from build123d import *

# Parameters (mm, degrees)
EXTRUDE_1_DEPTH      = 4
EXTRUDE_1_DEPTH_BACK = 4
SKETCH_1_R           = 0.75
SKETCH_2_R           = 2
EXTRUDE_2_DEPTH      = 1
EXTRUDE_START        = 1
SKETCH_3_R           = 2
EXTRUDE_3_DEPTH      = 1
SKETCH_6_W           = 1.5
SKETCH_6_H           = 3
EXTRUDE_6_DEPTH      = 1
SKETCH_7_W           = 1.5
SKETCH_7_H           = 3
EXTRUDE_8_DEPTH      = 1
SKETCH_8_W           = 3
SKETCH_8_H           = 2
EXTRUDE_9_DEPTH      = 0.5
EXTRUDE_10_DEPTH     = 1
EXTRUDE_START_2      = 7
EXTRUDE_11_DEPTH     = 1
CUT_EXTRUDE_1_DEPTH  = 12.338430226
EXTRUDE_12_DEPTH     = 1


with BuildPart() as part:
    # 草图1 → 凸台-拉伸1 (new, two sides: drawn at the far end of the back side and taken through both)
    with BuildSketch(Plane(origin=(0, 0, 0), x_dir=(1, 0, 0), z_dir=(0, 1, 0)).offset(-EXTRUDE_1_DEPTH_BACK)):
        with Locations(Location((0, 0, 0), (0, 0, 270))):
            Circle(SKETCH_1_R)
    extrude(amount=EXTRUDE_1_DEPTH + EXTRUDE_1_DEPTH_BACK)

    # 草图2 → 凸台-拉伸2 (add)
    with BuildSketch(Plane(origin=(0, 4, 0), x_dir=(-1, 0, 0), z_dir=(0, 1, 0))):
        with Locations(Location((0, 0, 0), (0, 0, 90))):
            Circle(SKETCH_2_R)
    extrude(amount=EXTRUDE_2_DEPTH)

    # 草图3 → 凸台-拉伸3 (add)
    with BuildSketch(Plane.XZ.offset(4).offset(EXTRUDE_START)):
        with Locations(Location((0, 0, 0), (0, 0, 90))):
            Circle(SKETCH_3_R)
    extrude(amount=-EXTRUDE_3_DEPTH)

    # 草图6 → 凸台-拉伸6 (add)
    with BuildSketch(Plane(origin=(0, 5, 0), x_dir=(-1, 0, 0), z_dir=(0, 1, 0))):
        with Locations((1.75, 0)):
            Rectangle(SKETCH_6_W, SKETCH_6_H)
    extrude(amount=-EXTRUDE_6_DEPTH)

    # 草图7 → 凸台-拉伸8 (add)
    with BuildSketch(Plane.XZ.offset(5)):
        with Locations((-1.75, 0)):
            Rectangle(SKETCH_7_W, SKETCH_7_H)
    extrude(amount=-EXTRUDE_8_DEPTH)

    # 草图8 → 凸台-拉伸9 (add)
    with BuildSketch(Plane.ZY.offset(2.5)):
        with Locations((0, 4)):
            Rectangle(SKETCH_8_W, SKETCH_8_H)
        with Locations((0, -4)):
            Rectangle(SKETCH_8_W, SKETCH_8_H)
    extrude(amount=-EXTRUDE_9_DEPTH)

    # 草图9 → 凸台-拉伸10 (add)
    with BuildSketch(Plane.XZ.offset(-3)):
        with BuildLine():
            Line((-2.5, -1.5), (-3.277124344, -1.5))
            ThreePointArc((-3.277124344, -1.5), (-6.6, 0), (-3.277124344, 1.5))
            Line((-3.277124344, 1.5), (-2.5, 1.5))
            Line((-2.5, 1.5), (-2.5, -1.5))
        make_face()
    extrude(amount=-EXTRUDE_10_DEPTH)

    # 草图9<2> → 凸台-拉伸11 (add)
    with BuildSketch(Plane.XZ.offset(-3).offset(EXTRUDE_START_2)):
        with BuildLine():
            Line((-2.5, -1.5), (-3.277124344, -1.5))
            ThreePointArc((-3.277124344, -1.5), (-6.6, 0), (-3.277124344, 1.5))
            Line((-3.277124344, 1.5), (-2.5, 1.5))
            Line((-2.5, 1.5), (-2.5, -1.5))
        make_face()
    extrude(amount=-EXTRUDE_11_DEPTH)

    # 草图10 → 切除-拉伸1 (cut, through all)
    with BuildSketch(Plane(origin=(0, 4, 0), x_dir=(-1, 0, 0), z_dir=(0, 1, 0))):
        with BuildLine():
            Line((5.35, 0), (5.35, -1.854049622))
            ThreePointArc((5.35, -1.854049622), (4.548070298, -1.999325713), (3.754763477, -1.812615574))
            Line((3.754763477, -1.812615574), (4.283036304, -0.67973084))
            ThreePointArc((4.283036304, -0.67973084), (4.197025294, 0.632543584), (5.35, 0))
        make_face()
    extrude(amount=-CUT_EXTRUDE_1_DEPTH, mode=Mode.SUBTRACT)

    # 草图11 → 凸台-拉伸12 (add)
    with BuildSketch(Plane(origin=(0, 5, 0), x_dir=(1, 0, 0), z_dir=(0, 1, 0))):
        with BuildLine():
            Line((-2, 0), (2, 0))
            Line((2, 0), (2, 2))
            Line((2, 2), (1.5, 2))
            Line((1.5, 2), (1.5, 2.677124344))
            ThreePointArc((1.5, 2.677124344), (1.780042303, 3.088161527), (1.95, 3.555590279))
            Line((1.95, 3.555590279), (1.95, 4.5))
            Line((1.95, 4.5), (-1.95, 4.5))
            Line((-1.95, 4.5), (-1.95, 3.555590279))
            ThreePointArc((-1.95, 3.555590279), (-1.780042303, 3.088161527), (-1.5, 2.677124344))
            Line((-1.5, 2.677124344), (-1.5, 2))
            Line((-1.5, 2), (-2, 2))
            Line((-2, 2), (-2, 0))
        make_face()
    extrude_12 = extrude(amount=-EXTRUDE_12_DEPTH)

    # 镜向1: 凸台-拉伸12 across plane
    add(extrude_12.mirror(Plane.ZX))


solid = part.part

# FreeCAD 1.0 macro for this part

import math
import FreeCAD as App
import Part
import Sketcher
from FreeCAD import Vector
Q = App.Units.Quantity


def add_polygon(sketch, points):
    """Adds a closed chain of lines whose ends are joined by coincident constraints."""
    first, n = sketch.GeometryCount, len(points)
    for a, b in zip(points, points[1:] + points[:1]):
        sketch.addGeometry(Part.LineSegment(App.Vector(*a, 0), App.Vector(*b, 0)), False)
    for i in range(n):
        sketch.addConstraint(Sketcher.Constraint("Coincident", first + i, 2, first + (i + 1) % n, 1))

doc = App.newDocument("Part")
body = doc.addObject("PartDesign::Body", "Body")

sketch1 = body.newObject("Sketcher::SketchObject", "Sketch")
sketch1.AttachmentSupport = (doc.getObject("XZ_Plane"), [""])
sketch1.MapMode = "FlatFace"
sketch1.addGeometry(Part.Circle(Vector(0, 0, 0), Vector(0, 0, 1), 0.8), False)
sketch1.addConstraint(Sketcher.Constraint("Coincident", 0, 3, -1, 1))
sketch1.addConstraint(Sketcher.Constraint("Diameter", 0, Q("1.5 mm")))
pad1 = body.newObject("PartDesign::Pad", "Pad")
pad1.Profile = sketch1
pad1.Type = "TwoLengths"
pad1.Length = 4
pad1.Length2 = 4
pad1.Reversed = True

sketch2 = body.newObject("Sketcher::SketchObject", "Sketch001")
sketch2.AttachmentSupport = (doc.getObject("XZ_Plane"), [""])
sketch2.MapMode = "FlatFace"
sketch2.AttachmentOffset = App.Placement(Vector(0, 0, -4), App.Rotation())
sketch2.addGeometry(Part.Circle(Vector(0, 0, 0), Vector(0, 0, 1), 2), False)
sketch2.addConstraint(Sketcher.Constraint("Coincident", 0, 3, -1, 1))
sketch2.addConstraint(Sketcher.Constraint("Diameter", 0, Q("4 mm")))
pad2 = body.newObject("PartDesign::Pad", "Pad001")
pad2.Profile = sketch2
pad2.Length = 1
pad2.Reversed = True

sketch3 = body.newObject("Sketcher::SketchObject", "Sketch002")
sketch3.AttachmentSupport = (doc.getObject("XZ_Plane"), [""])
sketch3.MapMode = "FlatFace"
sketch3.AttachmentOffset = App.Placement(Vector(0, 0, 5), App.Rotation())
sketch3.addGeometry(Part.Circle(Vector(0, 0, 0), Vector(0, 0, 1), 2), False)
sketch3.addConstraint(Sketcher.Constraint("Coincident", 0, 3, -1, 1))
sketch3.addConstraint(Sketcher.Constraint("Diameter", 0, Q("4 mm")))
pad3 = body.newObject("PartDesign::Pad", "Pad002")
pad3.Profile = sketch3
pad3.Length = 1
pad3.Reversed = True

sketch4 = body.newObject("Sketcher::SketchObject", "Sketch003")
sketch4.AttachmentSupport = (doc.getObject("XZ_Plane"), [""])
sketch4.MapMode = "FlatFace"
sketch4.AttachmentOffset = App.Placement(Vector(0, 0, -5), App.Rotation())
add_polygon(sketch4, [(-1, 1.5), (-1, -1.5), (-2.5, -1.5), (-2.5, 1.5)])
sketch4.addConstraint(Sketcher.Constraint("Vertical", 0))
sketch4.addConstraint(Sketcher.Constraint("Horizontal", 1))
sketch4.addConstraint(Sketcher.Constraint("Vertical", 2))
sketch4.addConstraint(Sketcher.Constraint("Horizontal", 3))
sketch4.addConstraint(Sketcher.Constraint("DistanceY", 0, 2, 0, 1, Q("3 mm")))
sketch4.addConstraint(Sketcher.Constraint("DistanceX", 1, 2, 1, 1, Q("1.5 mm")))
sketch4.addConstraint(Sketcher.Constraint("DistanceX", 0, 2, -1, 1, Q("1 mm")))
sketch4.addConstraint(Sketcher.Constraint("DistanceY", 0, 2, -1, 1, Q("1.5 mm")))
pad4 = body.newObject("PartDesign::Pad", "Pad003")
pad4.Profile = sketch4
pad4.Length = 1

sketch5 = body.newObject("Sketcher::SketchObject", "Sketch004")
sketch5.AttachmentSupport = (doc.getObject("XZ_Plane"), [""])
sketch5.MapMode = "FlatFace"
sketch5.AttachmentOffset = App.Placement(Vector(0, 0, 5), App.Rotation())
add_polygon(sketch5, [(-2.5, 1.5), (-2.5, -1.5), (-1, -1.5), (-1, 1.5)])
sketch5.addConstraint(Sketcher.Constraint("Vertical", 0))
sketch5.addConstraint(Sketcher.Constraint("Horizontal", 1))
sketch5.addConstraint(Sketcher.Constraint("Vertical", 2))
sketch5.addConstraint(Sketcher.Constraint("Horizontal", 3))
sketch5.addConstraint(Sketcher.Constraint("DistanceY", 0, 2, 0, 1, Q("3 mm")))
sketch5.addConstraint(Sketcher.Constraint("DistanceX", 1, 1, 1, 2, Q("1.5 mm")))
sketch5.addConstraint(Sketcher.Constraint("DistanceX", 1, 2, -1, 1, Q("1 mm")))
sketch5.addConstraint(Sketcher.Constraint("DistanceY", 0, 2, -1, 1, Q("1.5 mm")))
pad5 = body.newObject("PartDesign::Pad", "Pad004")
pad5.Profile = sketch5
pad5.Length = 1
pad5.Reversed = True

sketch6 = body.newObject("Sketcher::SketchObject", "Sketch005")
sketch6.AttachmentSupport = (doc.getObject("YZ_Plane"), [""])
sketch6.MapMode = "FlatFace"
sketch6.AttachmentOffset = App.Placement(Vector(0, 0, -2.5), App.Rotation())
add_polygon(sketch6, [(5, -1.5), (3, -1.5), (3, 1.5), (5, 1.5)])
add_polygon(sketch6, [(-3, -1.5), (-5, -1.5), (-5, 1.5), (-3, 1.5)])
sketch6.addConstraint(Sketcher.Constraint("Horizontal", 0))
sketch6.addConstraint(Sketcher.Constraint("Vertical", 1))
sketch6.addConstraint(Sketcher.Constraint("Horizontal", 2))
sketch6.addConstraint(Sketcher.Constraint("Vertical", 3))
sketch6.addConstraint(Sketcher.Constraint("Horizontal", 4))
sketch6.addConstraint(Sketcher.Constraint("Vertical", 5))
sketch6.addConstraint(Sketcher.Constraint("Horizontal", 6))
sketch6.addConstraint(Sketcher.Constraint("Vertical", 7))
sketch6.addConstraint(Sketcher.Constraint("Symmetric", 2, 2, 4, 2, -1, 1))
sketch6.addConstraint(Sketcher.Constraint("Symmetric", 0, 2, 6, 2, -1, 1))
sketch6.addConstraint(Sketcher.Constraint("Horizontal", 3, 2, 4, 2))
sketch6.addConstraint(Sketcher.Constraint("DistanceX", 0, 2, 0, 1, Q("2 mm")))
sketch6.addConstraint(Sketcher.Constraint("DistanceY", 1, 1, 1, 2, Q("3 mm")))
sketch6.addConstraint(Sketcher.Constraint("DistanceX", -1, 1, 0, 2, Q("3 mm")))
pad6 = body.newObject("PartDesign::Pad", "Pad005")
pad6.Profile = sketch6
pad6.Length = 0.5

sketch7 = body.newObject("Sketcher::SketchObject", "Sketch006")
sketch7.AttachmentSupport = (doc.getObject("XZ_Plane"), [""])
sketch7.MapMode = "FlatFace"
sketch7.AttachmentOffset = App.Placement(Vector(0, 0, -3), App.Rotation())
sketch7.addGeometry(Part.LineSegment(Vector(-3.3, -1.5, 0), Vector(-2.5, -1.5, 0)), False)
sketch7.addGeometry(Part.LineSegment(Vector(-2.5, -1.5, 0), Vector(-2.5, 1.5, 0)), False)
sketch7.addGeometry(Part.LineSegment(Vector(-2.5, 1.5, 0), Vector(-3.3, 1.5, 0)), False)
sketch7.addGeometry(Part.ArcOfCircle(Part.Circle(Vector(-4.6, 0, 0), Vector(0, 0, 1), 2), math.radians(49), math.radians(311)), False)
sketch7.addConstraint(Sketcher.Constraint("Coincident", 0, 2, 1, 1))
sketch7.addConstraint(Sketcher.Constraint("Coincident", 1, 2, 2, 1))
sketch7.addConstraint(Sketcher.Constraint("Coincident", 2, 2, 3, 1))
sketch7.addConstraint(Sketcher.Constraint("Coincident", 3, 2, 0, 1))
sketch7.addConstraint(Sketcher.Constraint("Horizontal", 0))
sketch7.addConstraint(Sketcher.Constraint("Vertical", 1))
sketch7.addConstraint(Sketcher.Constraint("Horizontal", 2))
sketch7.addConstraint(Sketcher.Constraint("Symmetric", 2, 2, 3, 2, -1))
sketch7.addConstraint(Sketcher.Constraint("Radius", 3, Q("2 mm")))
sketch7.addConstraint(Sketcher.Constraint("DistanceY", 1, 1, 1, 2, Q("3 mm")))
sketch7.addConstraint(Sketcher.Constraint("DistanceX", 3, 3, -1, 1, Q("4.6 mm")))
sketch7.addConstraint(Sketcher.Constraint("DistanceX", 0, 2, -1, 1, Q("2.5 mm")))
pad7 = body.newObject("PartDesign::Pad", "Pad006")
pad7.Profile = sketch7
pad7.Length = 1
pad7.Reversed = True

sketch8 = body.newObject("Sketcher::SketchObject", "Sketch007")
sketch8.AttachmentSupport = (doc.getObject("XZ_Plane"), [""])
sketch8.MapMode = "FlatFace"
sketch8.AttachmentOffset = App.Placement(Vector(0, 0, 4), App.Rotation())
sketch8.addGeometry(Part.LineSegment(Vector(-3.3, -1.5, 0), Vector(-2.5, -1.5, 0)), False)
sketch8.addGeometry(Part.LineSegment(Vector(-2.5, -1.5, 0), Vector(-2.5, 1.5, 0)), False)
sketch8.addGeometry(Part.LineSegment(Vector(-2.5, 1.5, 0), Vector(-3.3, 1.5, 0)), False)
sketch8.addGeometry(Part.ArcOfCircle(Part.Circle(Vector(-4.6, 0, 0), Vector(0, 0, 1), 2), math.radians(49), math.radians(311)), False)
sketch8.addConstraint(Sketcher.Constraint("Coincident", 0, 2, 1, 1))
sketch8.addConstraint(Sketcher.Constraint("Coincident", 1, 2, 2, 1))
sketch8.addConstraint(Sketcher.Constraint("Coincident", 2, 2, 3, 1))
sketch8.addConstraint(Sketcher.Constraint("Coincident", 3, 2, 0, 1))
sketch8.addConstraint(Sketcher.Constraint("Horizontal", 0))
sketch8.addConstraint(Sketcher.Constraint("Vertical", 1))
sketch8.addConstraint(Sketcher.Constraint("Horizontal", 2))
sketch8.addConstraint(Sketcher.Constraint("Symmetric", 2, 2, 3, 2, -1))
sketch8.addConstraint(Sketcher.Constraint("Radius", 3, Q("2 mm")))
sketch8.addConstraint(Sketcher.Constraint("DistanceY", 1, 1, 1, 2, Q("3 mm")))
sketch8.addConstraint(Sketcher.Constraint("DistanceX", 3, 3, -1, 1, Q("4.6 mm")))
sketch8.addConstraint(Sketcher.Constraint("DistanceX", 0, 2, -1, 1, Q("2.5 mm")))
pad8 = body.newObject("PartDesign::Pad", "Pad007")
pad8.Profile = sketch8
pad8.Length = 1
pad8.Reversed = True

sketch9 = body.newObject("Sketcher::SketchObject", "Sketch008")
sketch9.AttachmentSupport = (doc.getObject("XZ_Plane"), [""])
sketch9.MapMode = "FlatFace"
sketch9.AttachmentOffset = App.Placement(Vector(0, 0, -4), App.Rotation())
sketch9.addGeometry(Part.LineSegment(Vector(-5.3, -1.9, 0), Vector(-5.3, 0, 0)), False)
sketch9.addGeometry(Part.ArcOfCircle(Part.Circle(Vector(-4.6, 0, 0), Vector(0, 0, 1), 0.8), math.radians(-65), math.radians(180)), False)
sketch9.addGeometry(Part.LineSegment(Vector(-4.3, -0.7, 0), Vector(-3.8, -1.8, 0)), False)
sketch9.addGeometry(Part.ArcOfCircle(Part.Circle(Vector(-4.6, 0, 0), Vector(0, 0, 1), 2), math.radians(-112), math.radians(-65)), False)
sketch9.addConstraint(Sketcher.Constraint("Tangent", 0, 2, 1, 2))
sketch9.addConstraint(Sketcher.Constraint("Coincident", 1, 1, 2, 1))
sketch9.addConstraint(Sketcher.Constraint("Coincident", 2, 2, 3, 2))
sketch9.addConstraint(Sketcher.Constraint("Coincident", 3, 1, 0, 1))
sketch9.addConstraint(Sketcher.Constraint("Vertical", 0))
sketch9.addConstraint(Sketcher.Constraint("Coincident", 3, 3, 1, 3))
sketch9.addConstraint(Sketcher.Constraint("PointOnObject", 1, 3, -1))
sketch9.addConstraint(Sketcher.Constraint("Radius", 3, Q("2 mm")))
sketch9.addConstraint(Sketcher.Constraint("Angle", 2, Q("-65 deg")))
sketch9.addConstraint(Sketcher.Constraint("Radius", 1, Q("0.75 mm")))
sketch9.addConstraint(Sketcher.Constraint("DistanceX", 1, 3, -1, 1, Q("4.6 mm")))
sketch9.addConstraint(Sketcher.Constraint("DistanceY", 1, 1, -1, 1, Q("0.679731 mm")))
pocket1 = body.newObject("PartDesign::Pocket", "Pocket")
pocket1.Profile = sketch9
pocket1.Type = "ThroughAll"
pocket1.Reversed = True

sketch10 = body.newObject("Sketcher::SketchObject", "Sketch009")
sketch10.AttachmentSupport = (doc.getObject("XZ_Plane"), [""])
sketch10.MapMode = "FlatFace"
sketch10.AttachmentOffset = App.Placement(Vector(0, 0, -5), App.Rotation())
sketch10.addGeometry(Part.LineSegment(Vector(-2, 0, 0), Vector(2, 0, 0)), False)
sketch10.addGeometry(Part.LineSegment(Vector(2, 0, 0), Vector(2, -2, 0)), False)
sketch10.addGeometry(Part.LineSegment(Vector(2, -2, 0), Vector(1.5, -2, 0)), False)
sketch10.addGeometry(Part.LineSegment(Vector(1.5, -2, 0), Vector(1.5, -2.7, 0)), False)
sketch10.addGeometry(Part.ArcOfCircle(Part.Circle(Vector(0, -4, 0), Vector(0, 0, 1), 2), math.radians(13), math.radians(41)), False)
sketch10.addGeometry(Part.LineSegment(Vector(1.9, -3.6, 0), Vector(1.9, -4.5, 0)), False)
sketch10.addGeometry(Part.LineSegment(Vector(1.9, -4.5, 0), Vector(-1.9, -4.5, 0)), False)
sketch10.addGeometry(Part.LineSegment(Vector(-1.9, -4.5, 0), Vector(-1.9, -3.6, 0)), False)
sketch10.addGeometry(Part.ArcOfCircle(Part.Circle(Vector(0, -4, 0), Vector(0, 0, 1), 2), math.radians(139), math.radians(167)), False)
sketch10.addGeometry(Part.LineSegment(Vector(-1.5, -2.7, 0), Vector(-1.5, -2, 0)), False)
sketch10.addGeometry(Part.LineSegment(Vector(-1.5, -2, 0), Vector(-2, -2, 0)), False)
sketch10.addGeometry(Part.LineSegment(Vector(-2, -2, 0), Vector(-2, 0, 0)), False)
sketch10.addConstraint(Sketcher.Constraint("Coincident", 0, 2, 1, 1))
sketch10.addConstraint(Sketcher.Constraint("Coincident", 1, 2, 2, 1))
sketch10.addConstraint(Sketcher.Constraint("Coincident", 2, 2, 3, 1))
sketch10.addConstraint(Sketcher.Constraint("Coincident", 3, 2, 4, 2))
sketch10.addConstraint(Sketcher.Constraint("Coincident", 4, 1, 5, 1))
sketch10.addConstraint(Sketcher.Constraint("Coincident", 5, 2, 6, 1))
sketch10.addConstraint(Sketcher.Constraint("Coincident", 6, 2, 7, 1))
sketch10.addConstraint(Sketcher.Constraint("Coincident", 7, 2, 8, 2))
sketch10.addConstraint(Sketcher.Constraint("Coincident", 8, 1, 9, 1))
sketch10.addConstraint(Sketcher.Constraint("Coincident", 9, 2, 10, 1))
sketch10.addConstraint(Sketcher.Constraint("Coincident", 10, 2, 11, 1))
sketch10.addConstraint(Sketcher.Constraint("Coincident", 11, 2, 0, 1))
sketch10.addConstraint(Sketcher.Constraint("Horizontal", 0))
sketch10.addConstraint(Sketcher.Constraint("Vertical", 1))
sketch10.addConstraint(Sketcher.Constraint("Horizontal", 2))
sketch10.addConstraint(Sketcher.Constraint("Vertical", 3))
sketch10.addConstraint(Sketcher.Constraint("Vertical", 5))
sketch10.addConstraint(Sketcher.Constraint("Horizontal", 6))
sketch10.addConstraint(Sketcher.Constraint("Vertical", 7))
sketch10.addConstraint(Sketcher.Constraint("Vertical", 9))
sketch10.addConstraint(Sketcher.Constraint("Horizontal", 10))
sketch10.addConstraint(Sketcher.Constraint("Vertical", 11))
sketch10.addConstraint(Sketcher.Constraint("Coincident", 8, 3, 4, 3))
sketch10.addConstraint(Sketcher.Constraint("Equal", 4, 8))
sketch10.addConstraint(Sketcher.Constraint("Symmetric", 0, 2, 11, 2, -1, 1))
sketch10.addConstraint(Sketcher.Constraint("Symmetric", 4, 1, 7, 2, -2))
sketch10.addConstraint(Sketcher.Constraint("Symmetric", 2, 2, 9, 2, -2))
sketch10.addConstraint(Sketcher.Constraint("Radius", 4, Q("2 mm")))
sketch10.addConstraint(Sketcher.Constraint("DistanceX", 0, 1, 0, 2, Q("4 mm")))
sketch10.addConstraint(Sketcher.Constraint("DistanceY", 1, 2, 1, 1, Q("2 mm")))
sketch10.addConstraint(Sketcher.Constraint("DistanceX", 2, 2, 2, 1, Q("0.5 mm")))
sketch10.addConstraint(Sketcher.Constraint("DistanceX", 6, 2, 6, 1, Q("3.9 mm")))
sketch10.addConstraint(Sketcher.Constraint("DistanceY", 4, 3, -1, 1, Q("4 mm")))
sketch10.addConstraint(Sketcher.Constraint("DistanceY", 5, 2, -1, 1, Q("4.5 mm")))
pad9 = body.newObject("PartDesign::Pad", "Pad008")
pad9.Profile = sketch10
pad9.Length = 1
doc.recompute()

mirrored = body.newObject("PartDesign::Mirrored", "Mirrored")
mirrored.Originals = [pad9]
mirrored.MirrorPlane = (doc.getObject("XZ_Plane"), [""])
body.Tip = mirrored

doc.recompute()
